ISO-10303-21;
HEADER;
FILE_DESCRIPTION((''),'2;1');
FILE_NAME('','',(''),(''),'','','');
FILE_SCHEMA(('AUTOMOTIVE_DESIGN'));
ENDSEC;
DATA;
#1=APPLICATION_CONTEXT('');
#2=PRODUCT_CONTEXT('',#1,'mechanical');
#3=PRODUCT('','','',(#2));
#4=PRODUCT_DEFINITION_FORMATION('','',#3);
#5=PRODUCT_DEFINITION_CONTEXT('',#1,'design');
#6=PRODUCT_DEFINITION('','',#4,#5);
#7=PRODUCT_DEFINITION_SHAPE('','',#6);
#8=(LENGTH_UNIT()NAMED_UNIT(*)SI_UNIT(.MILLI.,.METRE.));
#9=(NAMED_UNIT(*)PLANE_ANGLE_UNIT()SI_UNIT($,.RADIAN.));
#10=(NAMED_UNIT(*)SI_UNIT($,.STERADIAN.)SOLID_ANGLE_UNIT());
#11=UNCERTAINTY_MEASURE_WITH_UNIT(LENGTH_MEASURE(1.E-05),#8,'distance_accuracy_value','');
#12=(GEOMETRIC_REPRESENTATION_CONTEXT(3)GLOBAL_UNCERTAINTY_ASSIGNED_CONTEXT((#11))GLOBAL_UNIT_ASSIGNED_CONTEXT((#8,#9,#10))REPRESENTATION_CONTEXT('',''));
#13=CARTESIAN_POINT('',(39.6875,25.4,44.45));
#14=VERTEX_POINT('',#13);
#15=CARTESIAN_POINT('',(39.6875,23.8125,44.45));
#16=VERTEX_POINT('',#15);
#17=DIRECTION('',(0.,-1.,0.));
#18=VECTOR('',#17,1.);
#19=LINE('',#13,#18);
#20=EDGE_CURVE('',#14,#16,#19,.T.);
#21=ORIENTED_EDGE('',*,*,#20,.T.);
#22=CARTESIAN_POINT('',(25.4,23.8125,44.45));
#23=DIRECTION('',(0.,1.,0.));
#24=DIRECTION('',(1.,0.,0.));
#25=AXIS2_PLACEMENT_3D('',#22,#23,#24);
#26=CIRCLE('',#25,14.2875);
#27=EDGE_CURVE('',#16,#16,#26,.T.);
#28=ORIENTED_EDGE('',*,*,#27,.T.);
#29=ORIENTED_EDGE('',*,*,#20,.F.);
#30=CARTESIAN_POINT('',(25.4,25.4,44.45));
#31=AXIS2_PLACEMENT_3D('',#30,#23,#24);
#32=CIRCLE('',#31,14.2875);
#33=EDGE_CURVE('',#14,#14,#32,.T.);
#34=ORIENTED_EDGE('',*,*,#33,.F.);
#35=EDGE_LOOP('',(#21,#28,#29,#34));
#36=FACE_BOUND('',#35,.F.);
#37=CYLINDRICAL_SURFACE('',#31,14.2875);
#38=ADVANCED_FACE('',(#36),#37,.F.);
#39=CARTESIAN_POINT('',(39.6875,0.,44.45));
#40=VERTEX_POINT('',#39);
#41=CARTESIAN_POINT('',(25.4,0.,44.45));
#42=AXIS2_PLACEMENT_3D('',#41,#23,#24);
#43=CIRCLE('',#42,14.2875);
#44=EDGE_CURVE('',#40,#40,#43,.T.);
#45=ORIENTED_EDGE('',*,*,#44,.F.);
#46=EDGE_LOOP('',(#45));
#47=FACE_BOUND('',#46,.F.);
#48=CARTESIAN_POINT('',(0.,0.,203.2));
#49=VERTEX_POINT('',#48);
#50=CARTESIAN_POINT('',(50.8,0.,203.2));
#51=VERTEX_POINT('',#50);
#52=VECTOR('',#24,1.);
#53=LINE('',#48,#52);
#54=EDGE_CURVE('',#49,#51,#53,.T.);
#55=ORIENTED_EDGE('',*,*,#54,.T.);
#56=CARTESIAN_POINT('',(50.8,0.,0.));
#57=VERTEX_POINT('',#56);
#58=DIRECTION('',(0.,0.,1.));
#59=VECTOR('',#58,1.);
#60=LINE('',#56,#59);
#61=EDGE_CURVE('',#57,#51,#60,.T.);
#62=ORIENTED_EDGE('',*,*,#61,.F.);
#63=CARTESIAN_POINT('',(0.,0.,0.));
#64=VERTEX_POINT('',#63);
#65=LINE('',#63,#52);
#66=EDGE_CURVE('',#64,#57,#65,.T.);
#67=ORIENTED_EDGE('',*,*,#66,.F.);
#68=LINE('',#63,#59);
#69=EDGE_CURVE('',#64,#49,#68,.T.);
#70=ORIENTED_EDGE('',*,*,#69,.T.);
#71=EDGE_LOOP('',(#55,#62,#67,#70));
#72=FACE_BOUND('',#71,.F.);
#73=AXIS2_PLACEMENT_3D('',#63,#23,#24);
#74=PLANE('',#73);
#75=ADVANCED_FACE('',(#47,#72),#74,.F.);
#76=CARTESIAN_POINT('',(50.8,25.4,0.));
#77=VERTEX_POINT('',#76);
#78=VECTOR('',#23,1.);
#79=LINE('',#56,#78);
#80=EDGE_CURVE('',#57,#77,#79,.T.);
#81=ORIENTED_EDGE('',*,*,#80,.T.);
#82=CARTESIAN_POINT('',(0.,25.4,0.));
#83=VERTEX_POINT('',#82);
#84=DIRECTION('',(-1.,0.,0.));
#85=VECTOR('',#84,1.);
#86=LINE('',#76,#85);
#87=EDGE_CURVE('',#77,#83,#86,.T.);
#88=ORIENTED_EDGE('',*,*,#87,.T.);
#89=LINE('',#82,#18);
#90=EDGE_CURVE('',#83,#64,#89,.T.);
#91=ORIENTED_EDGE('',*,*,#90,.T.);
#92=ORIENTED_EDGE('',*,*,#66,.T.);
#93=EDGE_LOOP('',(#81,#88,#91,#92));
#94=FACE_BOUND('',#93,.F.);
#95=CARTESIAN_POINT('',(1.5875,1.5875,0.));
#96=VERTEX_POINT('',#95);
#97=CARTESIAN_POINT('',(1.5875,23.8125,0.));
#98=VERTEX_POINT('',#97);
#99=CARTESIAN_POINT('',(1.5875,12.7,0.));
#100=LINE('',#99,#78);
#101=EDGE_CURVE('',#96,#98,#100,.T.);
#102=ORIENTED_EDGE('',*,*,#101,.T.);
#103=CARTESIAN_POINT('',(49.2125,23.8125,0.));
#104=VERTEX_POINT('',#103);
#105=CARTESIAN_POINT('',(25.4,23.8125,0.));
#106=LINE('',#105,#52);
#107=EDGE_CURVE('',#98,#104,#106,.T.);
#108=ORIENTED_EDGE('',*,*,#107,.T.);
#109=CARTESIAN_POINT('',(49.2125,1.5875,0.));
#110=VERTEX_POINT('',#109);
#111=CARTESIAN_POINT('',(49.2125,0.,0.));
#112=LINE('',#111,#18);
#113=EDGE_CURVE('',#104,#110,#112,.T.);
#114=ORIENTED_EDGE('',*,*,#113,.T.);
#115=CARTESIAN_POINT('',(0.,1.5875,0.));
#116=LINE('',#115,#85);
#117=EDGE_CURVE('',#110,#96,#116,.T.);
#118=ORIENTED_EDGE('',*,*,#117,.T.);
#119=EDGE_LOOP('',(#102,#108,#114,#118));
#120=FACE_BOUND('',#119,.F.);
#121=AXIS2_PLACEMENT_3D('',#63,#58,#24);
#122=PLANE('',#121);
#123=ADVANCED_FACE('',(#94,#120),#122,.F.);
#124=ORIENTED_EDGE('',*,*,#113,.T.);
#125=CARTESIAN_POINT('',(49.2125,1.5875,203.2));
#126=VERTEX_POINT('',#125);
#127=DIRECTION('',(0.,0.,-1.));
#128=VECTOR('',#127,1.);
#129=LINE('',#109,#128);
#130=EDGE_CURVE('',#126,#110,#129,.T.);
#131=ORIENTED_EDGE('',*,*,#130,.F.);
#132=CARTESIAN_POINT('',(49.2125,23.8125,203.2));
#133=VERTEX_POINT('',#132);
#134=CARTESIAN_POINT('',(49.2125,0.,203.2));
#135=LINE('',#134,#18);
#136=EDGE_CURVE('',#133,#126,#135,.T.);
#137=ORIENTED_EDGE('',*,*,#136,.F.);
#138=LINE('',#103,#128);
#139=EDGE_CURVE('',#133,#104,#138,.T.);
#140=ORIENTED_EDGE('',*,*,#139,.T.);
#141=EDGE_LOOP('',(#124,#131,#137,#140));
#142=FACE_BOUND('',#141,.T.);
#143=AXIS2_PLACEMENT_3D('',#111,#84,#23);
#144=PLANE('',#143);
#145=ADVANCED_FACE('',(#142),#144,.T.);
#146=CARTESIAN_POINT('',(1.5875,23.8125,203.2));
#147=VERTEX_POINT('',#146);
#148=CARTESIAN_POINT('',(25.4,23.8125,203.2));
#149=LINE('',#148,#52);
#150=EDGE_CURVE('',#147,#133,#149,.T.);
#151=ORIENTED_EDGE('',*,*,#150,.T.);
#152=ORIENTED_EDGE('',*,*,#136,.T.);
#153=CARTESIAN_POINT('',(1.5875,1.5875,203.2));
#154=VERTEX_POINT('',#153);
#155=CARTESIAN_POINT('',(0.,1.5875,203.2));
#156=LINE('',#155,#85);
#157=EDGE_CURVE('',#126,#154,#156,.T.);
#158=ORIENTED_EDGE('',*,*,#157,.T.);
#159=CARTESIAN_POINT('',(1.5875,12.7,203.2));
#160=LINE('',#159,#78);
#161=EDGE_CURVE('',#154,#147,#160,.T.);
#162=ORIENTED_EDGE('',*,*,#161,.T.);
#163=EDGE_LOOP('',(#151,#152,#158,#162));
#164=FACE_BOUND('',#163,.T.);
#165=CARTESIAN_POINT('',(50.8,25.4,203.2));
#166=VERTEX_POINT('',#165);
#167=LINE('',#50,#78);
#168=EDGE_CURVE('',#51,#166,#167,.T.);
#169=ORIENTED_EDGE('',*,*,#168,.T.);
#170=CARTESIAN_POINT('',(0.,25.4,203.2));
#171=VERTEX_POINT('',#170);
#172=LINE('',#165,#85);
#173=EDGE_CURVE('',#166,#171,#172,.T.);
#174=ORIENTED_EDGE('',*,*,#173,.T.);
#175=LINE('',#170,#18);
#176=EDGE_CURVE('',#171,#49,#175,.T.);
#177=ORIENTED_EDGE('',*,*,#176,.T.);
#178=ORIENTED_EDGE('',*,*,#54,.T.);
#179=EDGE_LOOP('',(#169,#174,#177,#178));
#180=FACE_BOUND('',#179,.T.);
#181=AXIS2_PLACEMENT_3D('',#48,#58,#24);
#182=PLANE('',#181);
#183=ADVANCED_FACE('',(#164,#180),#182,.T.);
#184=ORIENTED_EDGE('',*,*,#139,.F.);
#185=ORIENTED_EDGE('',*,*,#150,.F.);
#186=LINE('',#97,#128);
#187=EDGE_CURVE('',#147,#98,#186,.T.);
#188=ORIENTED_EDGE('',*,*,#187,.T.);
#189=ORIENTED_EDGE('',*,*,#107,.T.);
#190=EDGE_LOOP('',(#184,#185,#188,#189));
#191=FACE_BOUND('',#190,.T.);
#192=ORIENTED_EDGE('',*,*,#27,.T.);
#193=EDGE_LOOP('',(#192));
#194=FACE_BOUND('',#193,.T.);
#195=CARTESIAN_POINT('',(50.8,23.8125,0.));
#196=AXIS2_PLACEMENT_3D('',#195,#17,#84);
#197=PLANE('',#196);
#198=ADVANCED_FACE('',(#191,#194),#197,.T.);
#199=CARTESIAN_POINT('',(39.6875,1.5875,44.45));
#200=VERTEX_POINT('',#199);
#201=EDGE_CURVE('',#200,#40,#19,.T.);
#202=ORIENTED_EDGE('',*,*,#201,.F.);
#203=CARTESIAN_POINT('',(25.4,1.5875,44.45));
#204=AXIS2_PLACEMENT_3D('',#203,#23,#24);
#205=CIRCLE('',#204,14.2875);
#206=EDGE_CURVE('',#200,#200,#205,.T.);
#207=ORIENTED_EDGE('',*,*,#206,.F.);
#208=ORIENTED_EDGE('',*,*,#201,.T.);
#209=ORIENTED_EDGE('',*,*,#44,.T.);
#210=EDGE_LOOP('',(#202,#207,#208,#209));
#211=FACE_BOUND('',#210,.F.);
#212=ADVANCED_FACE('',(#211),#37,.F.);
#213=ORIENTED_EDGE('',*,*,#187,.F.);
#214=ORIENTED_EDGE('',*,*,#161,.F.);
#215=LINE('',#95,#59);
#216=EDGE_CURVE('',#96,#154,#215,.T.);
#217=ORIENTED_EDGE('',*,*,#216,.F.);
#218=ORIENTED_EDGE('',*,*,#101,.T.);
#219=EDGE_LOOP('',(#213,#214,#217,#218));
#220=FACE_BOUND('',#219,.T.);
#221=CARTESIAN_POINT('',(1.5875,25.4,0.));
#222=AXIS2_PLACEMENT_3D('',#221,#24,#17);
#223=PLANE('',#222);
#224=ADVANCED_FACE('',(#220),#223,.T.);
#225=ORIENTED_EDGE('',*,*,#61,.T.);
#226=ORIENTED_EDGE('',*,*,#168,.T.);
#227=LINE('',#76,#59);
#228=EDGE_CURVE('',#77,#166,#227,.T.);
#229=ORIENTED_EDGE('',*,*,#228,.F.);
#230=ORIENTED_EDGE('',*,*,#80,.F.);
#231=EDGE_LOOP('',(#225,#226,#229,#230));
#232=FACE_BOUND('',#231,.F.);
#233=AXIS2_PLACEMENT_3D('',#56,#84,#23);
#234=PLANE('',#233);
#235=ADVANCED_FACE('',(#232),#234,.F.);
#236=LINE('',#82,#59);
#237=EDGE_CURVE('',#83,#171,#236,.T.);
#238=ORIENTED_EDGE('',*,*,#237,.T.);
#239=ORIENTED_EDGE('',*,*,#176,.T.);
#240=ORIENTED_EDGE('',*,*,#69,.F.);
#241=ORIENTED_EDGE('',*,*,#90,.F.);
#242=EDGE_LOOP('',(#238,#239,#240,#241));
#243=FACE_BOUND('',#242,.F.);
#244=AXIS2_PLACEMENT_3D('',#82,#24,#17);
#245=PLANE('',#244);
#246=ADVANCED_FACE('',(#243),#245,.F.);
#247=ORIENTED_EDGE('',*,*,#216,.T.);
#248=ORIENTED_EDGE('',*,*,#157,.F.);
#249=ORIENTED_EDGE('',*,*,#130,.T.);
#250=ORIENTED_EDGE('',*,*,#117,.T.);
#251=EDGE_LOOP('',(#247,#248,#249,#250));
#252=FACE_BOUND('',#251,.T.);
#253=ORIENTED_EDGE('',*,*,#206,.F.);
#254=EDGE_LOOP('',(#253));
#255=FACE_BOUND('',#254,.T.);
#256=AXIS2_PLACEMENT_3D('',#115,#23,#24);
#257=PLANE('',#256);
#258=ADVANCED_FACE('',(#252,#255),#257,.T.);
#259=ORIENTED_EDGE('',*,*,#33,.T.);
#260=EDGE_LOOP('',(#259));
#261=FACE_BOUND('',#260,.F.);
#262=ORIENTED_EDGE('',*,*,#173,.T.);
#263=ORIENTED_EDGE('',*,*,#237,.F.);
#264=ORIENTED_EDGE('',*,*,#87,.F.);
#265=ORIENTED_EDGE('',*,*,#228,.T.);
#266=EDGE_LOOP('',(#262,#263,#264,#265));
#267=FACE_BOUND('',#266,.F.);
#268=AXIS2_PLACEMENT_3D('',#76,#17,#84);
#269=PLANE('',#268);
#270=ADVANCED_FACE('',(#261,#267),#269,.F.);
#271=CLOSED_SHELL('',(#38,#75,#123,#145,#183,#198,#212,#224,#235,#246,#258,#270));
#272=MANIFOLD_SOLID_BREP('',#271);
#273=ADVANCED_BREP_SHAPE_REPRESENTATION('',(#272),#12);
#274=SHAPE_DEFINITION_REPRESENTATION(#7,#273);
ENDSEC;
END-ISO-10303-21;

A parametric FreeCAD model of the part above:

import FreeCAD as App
import Part
import Sketcher
from FreeCAD import Vector
Q = App.Units.Quantity


def faces_at(feature, points):
    """Names of the faces that lie closest to the given points."""
    faces = feature.Shape.Faces
    near = lambda p: min(range(len(faces)), key=lambda i: faces[i].distToShape(Part.Vertex(*p))[0])
    return sorted({f"Face{near(p) + 1}" for p in points})


def add_polygon(sketch, points):
    """Adds a closed chain of lines whose ends are joined by coincident constraints."""
    first, n = sketch.GeometryCount, len(points)
    for a, b in zip(points, points[1:] + points[:1]):
        sketch.addGeometry(Part.LineSegment(App.Vector(*a, 0), App.Vector(*b, 0)), False)
    for i in range(n):
        sketch.addConstraint(Sketcher.Constraint("Coincident", first + i, 2, first + (i + 1) % n, 1))

doc = App.newDocument("Part")
body = doc.addObject("PartDesign::Body", "Body")

sketch1 = body.newObject("Sketcher::SketchObject", "Sketch")
sketch1.AttachmentSupport = (doc.getObject("XY_Plane"), [""])
sketch1.MapMode = "FlatFace"
add_polygon(sketch1, [(0, 25), (0, 0), (51, 0), (51, 25)])
sketch1.addConstraint([
    Sketcher.Constraint("Vertical", 0),
    Sketcher.Constraint("Horizontal", 1),
    Sketcher.Constraint("Vertical", 2),
    Sketcher.Constraint("Horizontal", 3),
    Sketcher.Constraint("Coincident", 0, 2, -1, 1),
    Sketcher.Constraint("DistanceX", 1, 1, 1, 2, Q("2 in")),
    Sketcher.Constraint("DistanceY", 0, 2, 0, 1, Q("1 in")),
])
pad1 = body.newObject("PartDesign::Pad", "Pad")
pad1.Profile = sketch1
pad1.Length = Q("8 in")
doc.recompute()

thickness = body.newObject("PartDesign::Thickness", "Thickness")
thickness.Base = (pad1, faces_at(pad1, [(16.933, 8.467, 0), (16.933, 8.467, 203.2)]))
thickness.Value = Q("0.0625 in")
thickness.Reversed = True
thickness.Join = "Intersection"

sketch2 = body.newObject("Sketcher::SketchObject", "Sketch001")
sketch2.AttachmentSupport = (doc.getObject("XZ_Plane"), [""])
sketch2.MapMode = "FlatFace"
sketch2.AttachmentOffset = App.Placement(Vector(0, 0, -1 * 25.4), App.Rotation())
sketch2.addGeometry(Part.Circle(Vector(25, 44, 0), Vector(0, 0, 1), 14), False)
sketch2.addConstraint([
    Sketcher.Constraint("Diameter", 0, Q("1.125 in")),
    Sketcher.Constraint("DistanceX", -1, 1, 0, 3, Q("1 in")),
    Sketcher.Constraint("DistanceY", -1, 1, 0, 3, Q("1.75 in")),
])
pocket1 = body.newObject("PartDesign::Pocket", "Pocket")
pocket1.Profile = sketch2
pocket1.Type = "ThroughAll"
pocket1.Reversed = True

doc.recompute()
